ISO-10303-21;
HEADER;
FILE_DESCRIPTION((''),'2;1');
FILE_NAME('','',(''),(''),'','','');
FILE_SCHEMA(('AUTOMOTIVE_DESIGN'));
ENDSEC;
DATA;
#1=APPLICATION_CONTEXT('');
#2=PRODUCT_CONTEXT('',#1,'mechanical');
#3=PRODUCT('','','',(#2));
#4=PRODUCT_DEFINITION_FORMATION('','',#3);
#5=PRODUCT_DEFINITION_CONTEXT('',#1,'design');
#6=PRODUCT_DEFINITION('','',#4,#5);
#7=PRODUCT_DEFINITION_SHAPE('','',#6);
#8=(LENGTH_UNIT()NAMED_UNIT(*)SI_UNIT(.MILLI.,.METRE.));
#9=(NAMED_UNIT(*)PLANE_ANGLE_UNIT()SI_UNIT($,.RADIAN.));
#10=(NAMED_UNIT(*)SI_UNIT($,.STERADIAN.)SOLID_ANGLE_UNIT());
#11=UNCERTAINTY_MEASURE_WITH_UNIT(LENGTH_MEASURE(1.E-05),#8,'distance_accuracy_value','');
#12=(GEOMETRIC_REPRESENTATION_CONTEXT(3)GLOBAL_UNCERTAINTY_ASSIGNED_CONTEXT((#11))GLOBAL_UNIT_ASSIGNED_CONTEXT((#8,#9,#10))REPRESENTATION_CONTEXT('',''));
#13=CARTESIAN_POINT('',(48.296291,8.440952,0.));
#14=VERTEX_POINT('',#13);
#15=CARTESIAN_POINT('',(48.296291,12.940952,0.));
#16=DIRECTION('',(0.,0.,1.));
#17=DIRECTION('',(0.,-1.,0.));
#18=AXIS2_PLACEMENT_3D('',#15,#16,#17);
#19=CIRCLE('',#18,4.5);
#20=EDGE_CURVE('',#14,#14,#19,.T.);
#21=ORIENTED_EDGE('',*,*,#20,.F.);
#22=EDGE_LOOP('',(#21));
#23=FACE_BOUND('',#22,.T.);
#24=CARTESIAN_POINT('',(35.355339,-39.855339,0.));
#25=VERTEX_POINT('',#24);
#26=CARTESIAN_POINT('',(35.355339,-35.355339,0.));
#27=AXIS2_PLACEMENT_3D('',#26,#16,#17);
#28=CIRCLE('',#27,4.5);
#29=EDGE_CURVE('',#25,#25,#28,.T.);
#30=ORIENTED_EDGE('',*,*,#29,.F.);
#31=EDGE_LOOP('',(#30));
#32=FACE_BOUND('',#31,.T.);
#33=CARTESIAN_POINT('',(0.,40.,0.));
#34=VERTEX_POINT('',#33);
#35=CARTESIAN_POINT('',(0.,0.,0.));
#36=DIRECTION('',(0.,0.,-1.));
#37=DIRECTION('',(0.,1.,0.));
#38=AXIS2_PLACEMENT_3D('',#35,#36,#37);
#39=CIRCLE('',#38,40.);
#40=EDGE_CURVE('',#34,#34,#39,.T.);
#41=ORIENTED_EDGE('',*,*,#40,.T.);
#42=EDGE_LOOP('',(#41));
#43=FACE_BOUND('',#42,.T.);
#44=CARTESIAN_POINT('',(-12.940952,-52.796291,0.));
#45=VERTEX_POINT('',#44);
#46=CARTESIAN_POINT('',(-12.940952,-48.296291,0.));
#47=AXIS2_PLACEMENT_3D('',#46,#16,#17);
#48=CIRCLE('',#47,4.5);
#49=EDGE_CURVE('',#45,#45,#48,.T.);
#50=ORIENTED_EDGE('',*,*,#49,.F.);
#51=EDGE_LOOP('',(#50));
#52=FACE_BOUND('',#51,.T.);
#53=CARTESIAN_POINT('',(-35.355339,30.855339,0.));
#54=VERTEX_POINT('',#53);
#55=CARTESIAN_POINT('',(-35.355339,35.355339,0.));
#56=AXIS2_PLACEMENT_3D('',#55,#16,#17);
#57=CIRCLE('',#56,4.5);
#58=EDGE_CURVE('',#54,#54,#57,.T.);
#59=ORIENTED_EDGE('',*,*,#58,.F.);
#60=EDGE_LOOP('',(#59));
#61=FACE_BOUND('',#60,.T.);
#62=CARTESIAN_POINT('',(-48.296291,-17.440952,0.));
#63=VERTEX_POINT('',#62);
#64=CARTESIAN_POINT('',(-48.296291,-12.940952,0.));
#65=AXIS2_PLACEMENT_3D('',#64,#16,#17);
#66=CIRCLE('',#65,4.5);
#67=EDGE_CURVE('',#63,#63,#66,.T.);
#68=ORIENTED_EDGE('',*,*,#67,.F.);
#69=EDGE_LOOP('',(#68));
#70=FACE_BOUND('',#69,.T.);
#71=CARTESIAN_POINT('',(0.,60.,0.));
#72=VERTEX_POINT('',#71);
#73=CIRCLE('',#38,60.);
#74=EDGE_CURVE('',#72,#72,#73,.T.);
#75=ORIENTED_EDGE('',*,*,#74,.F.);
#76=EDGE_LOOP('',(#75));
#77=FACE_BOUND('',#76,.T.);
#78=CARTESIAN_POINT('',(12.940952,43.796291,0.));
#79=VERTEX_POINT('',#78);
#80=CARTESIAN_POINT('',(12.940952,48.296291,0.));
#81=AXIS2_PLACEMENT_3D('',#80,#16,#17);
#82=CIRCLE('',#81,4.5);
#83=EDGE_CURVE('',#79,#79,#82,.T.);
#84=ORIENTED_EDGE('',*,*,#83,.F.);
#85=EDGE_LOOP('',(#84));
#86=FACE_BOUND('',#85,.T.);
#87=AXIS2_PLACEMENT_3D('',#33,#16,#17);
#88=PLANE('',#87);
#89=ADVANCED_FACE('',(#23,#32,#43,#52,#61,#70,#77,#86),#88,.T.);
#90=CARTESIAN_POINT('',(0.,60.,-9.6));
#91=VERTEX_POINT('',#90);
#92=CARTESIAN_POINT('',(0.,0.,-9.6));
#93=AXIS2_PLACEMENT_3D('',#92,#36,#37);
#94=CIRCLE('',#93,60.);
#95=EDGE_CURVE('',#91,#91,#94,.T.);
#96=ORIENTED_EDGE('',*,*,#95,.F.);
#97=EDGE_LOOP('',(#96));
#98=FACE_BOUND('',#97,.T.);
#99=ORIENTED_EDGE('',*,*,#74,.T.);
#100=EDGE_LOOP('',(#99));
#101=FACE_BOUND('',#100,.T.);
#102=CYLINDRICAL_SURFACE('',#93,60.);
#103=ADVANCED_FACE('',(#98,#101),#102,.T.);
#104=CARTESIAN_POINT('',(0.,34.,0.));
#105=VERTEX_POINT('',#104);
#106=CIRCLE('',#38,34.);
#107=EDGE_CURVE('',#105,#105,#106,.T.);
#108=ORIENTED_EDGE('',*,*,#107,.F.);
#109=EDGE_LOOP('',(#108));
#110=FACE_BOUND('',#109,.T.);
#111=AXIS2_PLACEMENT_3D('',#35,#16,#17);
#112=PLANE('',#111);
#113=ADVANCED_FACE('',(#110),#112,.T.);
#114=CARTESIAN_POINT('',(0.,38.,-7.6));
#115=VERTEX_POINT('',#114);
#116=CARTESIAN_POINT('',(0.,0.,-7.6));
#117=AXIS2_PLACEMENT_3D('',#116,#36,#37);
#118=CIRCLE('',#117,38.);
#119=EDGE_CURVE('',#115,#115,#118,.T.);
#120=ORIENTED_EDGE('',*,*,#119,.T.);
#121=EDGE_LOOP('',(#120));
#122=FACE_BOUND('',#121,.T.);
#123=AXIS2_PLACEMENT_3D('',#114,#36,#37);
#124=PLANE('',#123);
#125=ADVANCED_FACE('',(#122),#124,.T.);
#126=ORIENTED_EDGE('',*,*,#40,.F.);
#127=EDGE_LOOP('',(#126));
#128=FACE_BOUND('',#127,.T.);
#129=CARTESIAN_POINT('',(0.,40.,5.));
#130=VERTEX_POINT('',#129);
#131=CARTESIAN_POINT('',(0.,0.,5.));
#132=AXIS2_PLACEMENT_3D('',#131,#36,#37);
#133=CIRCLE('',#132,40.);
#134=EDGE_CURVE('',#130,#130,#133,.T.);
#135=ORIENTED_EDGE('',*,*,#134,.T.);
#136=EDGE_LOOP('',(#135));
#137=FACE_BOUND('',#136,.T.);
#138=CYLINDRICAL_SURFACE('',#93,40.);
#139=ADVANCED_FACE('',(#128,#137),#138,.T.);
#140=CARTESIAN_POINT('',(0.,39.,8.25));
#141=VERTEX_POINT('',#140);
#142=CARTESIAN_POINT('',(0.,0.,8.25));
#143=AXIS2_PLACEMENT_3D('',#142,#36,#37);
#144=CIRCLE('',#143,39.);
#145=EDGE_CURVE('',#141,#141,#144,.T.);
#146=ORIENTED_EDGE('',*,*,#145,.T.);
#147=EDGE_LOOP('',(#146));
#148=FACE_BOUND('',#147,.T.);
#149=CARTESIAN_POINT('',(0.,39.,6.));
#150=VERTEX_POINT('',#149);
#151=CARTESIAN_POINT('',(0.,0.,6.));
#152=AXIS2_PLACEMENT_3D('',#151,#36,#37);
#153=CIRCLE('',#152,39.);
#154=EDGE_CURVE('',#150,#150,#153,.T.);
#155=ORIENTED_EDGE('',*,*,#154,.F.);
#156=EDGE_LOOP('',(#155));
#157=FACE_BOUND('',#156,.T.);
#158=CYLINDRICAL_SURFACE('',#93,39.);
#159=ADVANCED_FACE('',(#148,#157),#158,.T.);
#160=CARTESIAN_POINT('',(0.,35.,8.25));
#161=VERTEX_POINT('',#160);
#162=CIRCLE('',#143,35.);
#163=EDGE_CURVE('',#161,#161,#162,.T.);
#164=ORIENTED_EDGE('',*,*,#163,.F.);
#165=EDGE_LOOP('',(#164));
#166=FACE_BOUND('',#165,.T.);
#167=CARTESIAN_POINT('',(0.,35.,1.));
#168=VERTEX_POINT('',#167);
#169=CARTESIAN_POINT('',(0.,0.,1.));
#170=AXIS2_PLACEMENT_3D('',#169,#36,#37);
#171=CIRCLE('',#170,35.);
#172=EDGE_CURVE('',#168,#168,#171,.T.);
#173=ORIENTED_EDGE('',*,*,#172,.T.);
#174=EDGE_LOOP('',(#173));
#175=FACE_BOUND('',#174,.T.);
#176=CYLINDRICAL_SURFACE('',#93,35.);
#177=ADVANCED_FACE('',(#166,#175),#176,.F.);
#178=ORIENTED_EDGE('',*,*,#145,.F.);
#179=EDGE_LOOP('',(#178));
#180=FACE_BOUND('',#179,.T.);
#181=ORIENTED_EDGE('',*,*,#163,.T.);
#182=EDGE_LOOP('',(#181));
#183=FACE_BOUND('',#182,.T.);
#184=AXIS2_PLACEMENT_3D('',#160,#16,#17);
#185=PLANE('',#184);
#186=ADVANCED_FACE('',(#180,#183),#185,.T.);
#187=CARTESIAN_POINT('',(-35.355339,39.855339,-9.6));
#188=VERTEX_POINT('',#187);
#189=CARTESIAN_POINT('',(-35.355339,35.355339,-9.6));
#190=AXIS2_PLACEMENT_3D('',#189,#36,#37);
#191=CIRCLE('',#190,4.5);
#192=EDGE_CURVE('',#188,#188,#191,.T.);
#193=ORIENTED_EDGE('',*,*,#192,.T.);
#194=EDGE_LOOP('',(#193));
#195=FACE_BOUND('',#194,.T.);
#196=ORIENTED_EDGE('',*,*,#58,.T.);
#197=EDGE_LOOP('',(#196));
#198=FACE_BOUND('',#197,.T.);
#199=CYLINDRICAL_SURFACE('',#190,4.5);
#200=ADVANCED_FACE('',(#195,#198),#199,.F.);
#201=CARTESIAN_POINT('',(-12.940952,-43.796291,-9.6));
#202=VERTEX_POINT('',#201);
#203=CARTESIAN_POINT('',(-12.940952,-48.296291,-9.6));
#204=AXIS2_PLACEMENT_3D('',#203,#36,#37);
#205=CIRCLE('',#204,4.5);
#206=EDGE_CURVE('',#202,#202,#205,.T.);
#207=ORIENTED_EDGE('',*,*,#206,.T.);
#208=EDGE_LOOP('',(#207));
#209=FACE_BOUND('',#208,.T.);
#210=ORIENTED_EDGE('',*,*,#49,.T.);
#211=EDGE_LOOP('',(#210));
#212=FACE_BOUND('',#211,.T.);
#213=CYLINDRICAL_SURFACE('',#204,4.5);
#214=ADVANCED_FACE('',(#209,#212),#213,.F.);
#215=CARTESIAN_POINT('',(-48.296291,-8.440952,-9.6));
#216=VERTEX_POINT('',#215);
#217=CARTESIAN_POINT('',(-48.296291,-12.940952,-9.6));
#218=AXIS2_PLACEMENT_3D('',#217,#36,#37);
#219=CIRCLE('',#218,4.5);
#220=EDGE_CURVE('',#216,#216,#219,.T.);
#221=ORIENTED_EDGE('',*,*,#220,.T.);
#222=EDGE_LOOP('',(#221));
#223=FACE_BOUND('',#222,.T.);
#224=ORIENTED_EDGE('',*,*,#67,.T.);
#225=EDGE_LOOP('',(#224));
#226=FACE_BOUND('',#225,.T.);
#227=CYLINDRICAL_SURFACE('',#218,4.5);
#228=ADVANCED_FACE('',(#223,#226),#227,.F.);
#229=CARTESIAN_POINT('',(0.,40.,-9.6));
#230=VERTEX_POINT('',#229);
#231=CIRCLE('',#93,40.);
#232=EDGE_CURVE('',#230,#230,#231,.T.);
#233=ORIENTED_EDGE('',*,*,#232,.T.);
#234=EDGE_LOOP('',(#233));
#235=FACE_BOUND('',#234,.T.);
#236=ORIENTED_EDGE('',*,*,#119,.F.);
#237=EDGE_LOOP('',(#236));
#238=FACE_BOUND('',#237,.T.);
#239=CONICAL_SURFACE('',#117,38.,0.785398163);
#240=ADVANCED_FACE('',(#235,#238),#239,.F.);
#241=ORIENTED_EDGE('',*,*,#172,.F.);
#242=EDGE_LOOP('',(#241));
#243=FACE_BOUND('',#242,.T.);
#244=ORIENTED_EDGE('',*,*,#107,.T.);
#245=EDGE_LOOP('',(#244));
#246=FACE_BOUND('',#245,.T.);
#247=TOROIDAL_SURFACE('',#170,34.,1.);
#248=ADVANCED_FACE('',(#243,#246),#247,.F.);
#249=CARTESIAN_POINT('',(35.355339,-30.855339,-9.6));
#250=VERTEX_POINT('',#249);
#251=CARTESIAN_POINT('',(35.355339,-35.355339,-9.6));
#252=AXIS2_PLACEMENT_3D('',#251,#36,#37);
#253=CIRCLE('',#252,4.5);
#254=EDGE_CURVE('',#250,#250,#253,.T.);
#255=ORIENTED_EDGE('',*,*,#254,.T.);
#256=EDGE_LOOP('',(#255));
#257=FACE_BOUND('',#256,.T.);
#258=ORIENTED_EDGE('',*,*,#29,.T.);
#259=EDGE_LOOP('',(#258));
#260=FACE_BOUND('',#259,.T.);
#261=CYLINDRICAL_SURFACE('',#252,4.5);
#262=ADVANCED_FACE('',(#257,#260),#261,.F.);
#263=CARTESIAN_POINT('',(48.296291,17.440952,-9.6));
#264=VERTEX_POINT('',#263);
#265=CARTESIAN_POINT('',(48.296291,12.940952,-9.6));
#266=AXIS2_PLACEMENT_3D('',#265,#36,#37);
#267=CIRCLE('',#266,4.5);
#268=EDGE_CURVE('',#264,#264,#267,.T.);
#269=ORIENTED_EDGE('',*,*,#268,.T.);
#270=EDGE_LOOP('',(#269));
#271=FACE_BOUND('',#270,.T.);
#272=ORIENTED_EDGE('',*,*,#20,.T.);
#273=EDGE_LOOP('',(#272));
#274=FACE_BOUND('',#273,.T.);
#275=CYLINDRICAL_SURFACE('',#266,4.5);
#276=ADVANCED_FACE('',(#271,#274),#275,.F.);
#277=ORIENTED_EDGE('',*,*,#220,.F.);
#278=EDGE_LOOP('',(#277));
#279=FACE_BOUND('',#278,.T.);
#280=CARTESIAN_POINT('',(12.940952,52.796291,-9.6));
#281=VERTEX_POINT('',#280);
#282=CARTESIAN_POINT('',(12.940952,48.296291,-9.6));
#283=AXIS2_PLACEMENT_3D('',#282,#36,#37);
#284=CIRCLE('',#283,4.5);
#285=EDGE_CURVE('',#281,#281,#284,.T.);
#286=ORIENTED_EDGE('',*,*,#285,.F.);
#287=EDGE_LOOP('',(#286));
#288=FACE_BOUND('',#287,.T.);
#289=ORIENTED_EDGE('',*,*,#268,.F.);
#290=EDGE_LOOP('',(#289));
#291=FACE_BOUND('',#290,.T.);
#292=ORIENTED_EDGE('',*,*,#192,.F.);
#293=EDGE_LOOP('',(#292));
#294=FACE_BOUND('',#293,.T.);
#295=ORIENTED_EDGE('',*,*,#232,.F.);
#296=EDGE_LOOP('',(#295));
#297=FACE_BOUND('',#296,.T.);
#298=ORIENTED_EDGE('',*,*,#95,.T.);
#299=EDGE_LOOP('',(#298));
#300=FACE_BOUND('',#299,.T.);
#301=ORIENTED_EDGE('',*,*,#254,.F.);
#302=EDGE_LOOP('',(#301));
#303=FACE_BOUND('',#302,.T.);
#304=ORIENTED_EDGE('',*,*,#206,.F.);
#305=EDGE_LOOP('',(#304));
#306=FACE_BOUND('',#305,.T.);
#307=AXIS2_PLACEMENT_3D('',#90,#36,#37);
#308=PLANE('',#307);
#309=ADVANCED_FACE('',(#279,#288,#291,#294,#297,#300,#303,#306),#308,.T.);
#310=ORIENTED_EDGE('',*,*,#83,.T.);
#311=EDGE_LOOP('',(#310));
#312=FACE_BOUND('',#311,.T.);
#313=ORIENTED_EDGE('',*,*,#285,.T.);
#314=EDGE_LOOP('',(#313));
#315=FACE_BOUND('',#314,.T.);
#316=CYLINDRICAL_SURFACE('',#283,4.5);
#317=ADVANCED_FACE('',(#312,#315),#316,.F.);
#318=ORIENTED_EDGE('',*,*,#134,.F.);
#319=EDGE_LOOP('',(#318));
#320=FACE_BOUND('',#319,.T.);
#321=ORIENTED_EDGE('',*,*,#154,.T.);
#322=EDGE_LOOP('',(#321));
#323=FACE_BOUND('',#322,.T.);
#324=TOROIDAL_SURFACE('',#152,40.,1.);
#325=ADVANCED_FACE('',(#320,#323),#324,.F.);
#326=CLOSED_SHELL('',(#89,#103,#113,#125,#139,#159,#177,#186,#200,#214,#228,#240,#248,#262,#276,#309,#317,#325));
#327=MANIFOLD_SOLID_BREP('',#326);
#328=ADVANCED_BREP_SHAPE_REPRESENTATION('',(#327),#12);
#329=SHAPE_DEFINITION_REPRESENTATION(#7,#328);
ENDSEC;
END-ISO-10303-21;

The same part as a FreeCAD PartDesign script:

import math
import FreeCAD as App
import Part
import Sketcher
from FreeCAD import Vector
Q = App.Units.Quantity

doc = App.newDocument("Part")
body = doc.addObject("PartDesign::Body", "Body")

sketch1 = body.newObject("Sketcher::SketchObject", "Sketch")
sketch1.AttachmentSupport = (doc.getObject("YZ_Plane"), [""])
sketch1.MapMode = "FlatFace"
sketch1.addGeometry(Part.LineSegment(Vector(34, 0, 0), Vector(0, 0, 0)), False)
sketch1.addGeometry(Part.LineSegment(Vector(0, 0, 0), Vector(0, -7.6, 0)), False)
sketch1.addGeometry(Part.LineSegment(Vector(0, -7.6, 0), Vector(38, -7.6, 0)), False)
sketch1.addGeometry(Part.LineSegment(Vector(38, -7.6, 0), Vector(40, -9.6, 0)), False)
sketch1.addGeometry(Part.LineSegment(Vector(40, -9.6, 0), Vector(60, -9.6, 0)), False)
sketch1.addGeometry(Part.LineSegment(Vector(60, -9.6, 0), Vector(60, 0, 0)), False)
sketch1.addGeometry(Part.LineSegment(Vector(60, 0, 0), Vector(40, 0, 0)), False)
sketch1.addGeometry(Part.LineSegment(Vector(40, 0, 0), Vector(40, 5, 0)), False)
sketch1.addGeometry(Part.ArcOfCircle(Part.Circle(Vector(40, 6, 0), Vector(0, 0, 1), 1), math.radians(-180), math.radians(-90)), False)
sketch1.addGeometry(Part.LineSegment(Vector(39, 6, 0), Vector(39, 8.2, 0)), False)
sketch1.addGeometry(Part.LineSegment(Vector(39, 8.2, 0), Vector(35, 8.2, 0)), False)
sketch1.addGeometry(Part.LineSegment(Vector(35, 8.2, 0), Vector(35, 1, 0)), False)
sketch1.addGeometry(Part.ArcOfCircle(Part.Circle(Vector(34, 1, 0), Vector(0, 0, 1), 1), math.radians(-90), math.radians(0)), False)
sketch1.addConstraint(Sketcher.Constraint("Coincident", 0, 2, 1, 1))
sketch1.addConstraint(Sketcher.Constraint("Coincident", 1, 2, 2, 1))
sketch1.addConstraint(Sketcher.Constraint("Coincident", 2, 2, 3, 1))
sketch1.addConstraint(Sketcher.Constraint("Coincident", 3, 2, 4, 1))
sketch1.addConstraint(Sketcher.Constraint("Coincident", 4, 2, 5, 1))
sketch1.addConstraint(Sketcher.Constraint("Coincident", 5, 2, 6, 1))
sketch1.addConstraint(Sketcher.Constraint("Coincident", 6, 2, 7, 1))
sketch1.addConstraint(Sketcher.Constraint("Coincident", 7, 2, 8, 2))
sketch1.addConstraint(Sketcher.Constraint("Tangent", 8, 1, 9, 1))
sketch1.addConstraint(Sketcher.Constraint("Coincident", 9, 2, 10, 1))
sketch1.addConstraint(Sketcher.Constraint("Coincident", 10, 2, 11, 1))
sketch1.addConstraint(Sketcher.Constraint("Tangent", 11, 2, 12, 2))
sketch1.addConstraint(Sketcher.Constraint("Tangent", 12, 1, 0, 1))
sketch1.addConstraint(Sketcher.Constraint("Horizontal", 0))
sketch1.addConstraint(Sketcher.Constraint("Vertical", 1))
sketch1.addConstraint(Sketcher.Constraint("Horizontal", 2))
sketch1.addConstraint(Sketcher.Constraint("Horizontal", 4))
sketch1.addConstraint(Sketcher.Constraint("Vertical", 5))
sketch1.addConstraint(Sketcher.Constraint("Horizontal", 6))
sketch1.addConstraint(Sketcher.Constraint("Vertical", 7))
sketch1.addConstraint(Sketcher.Constraint("Vertical", 9))
sketch1.addConstraint(Sketcher.Constraint("Horizontal", 10))
sketch1.addConstraint(Sketcher.Constraint("Vertical", 11))
sketch1.addConstraint(Sketcher.Constraint("Coincident", 0, 2, -1, 1))
sketch1.addConstraint(Sketcher.Constraint("Equal", 8, 12))
sketch1.addConstraint(Sketcher.Constraint("PointOnObject", 5, 2, -1))
sketch1.addConstraint(Sketcher.Constraint("Vertical", 8, 3, 3, 2))
sketch1.addConstraint(Sketcher.Constraint("Vertical", 3, 2, 6, 2))
sketch1.addConstraint(Sketcher.Constraint("Radius", 8, Q("1 mm")))
sketch1.addConstraint(Sketcher.Constraint("DistanceX", 0, 2, 0, 1, Q("34 mm")))
sketch1.addConstraint(Sketcher.Constraint("DistanceX", 2, 1, 2, 2, Q("38 mm")))
sketch1.addConstraint(Sketcher.Constraint("DistanceX", 4, 1, 4, 2, Q("20 mm")))
sketch1.addConstraint(Sketcher.Constraint("DistanceX", 10, 2, 10, 1, Q("4 mm")))
sketch1.addConstraint(Sketcher.Constraint("DistanceY", 7, 1, 7, 2, Q("5 mm")))
sketch1.addConstraint(Sketcher.Constraint("Angle", 3, Q("-45 deg")))
sketch1.addConstraint(Sketcher.Constraint("DistanceY", 1, 2, 1, 1, Q("7.6 mm")))
sketch1.addConstraint(Sketcher.Constraint("DistanceY", 9, 1, 9, 2, Q("2.25 mm")))
revolution = body.newObject("PartDesign::Revolution", "Revolution")
revolution.Profile = sketch1
revolution.ReferenceAxis = (sketch1, ["V_Axis"])
revolution.Angle = 360

sketch2 = body.newObject("Sketcher::SketchObject", "Sketch001")
sketch2.AttachmentSupport = (doc.getObject("XY_Plane"), [""])
sketch2.MapMode = "FlatFace"
sketch2.AttachmentOffset = App.Placement(Vector(0, 0, -9.6), App.Rotation())
sketch2.addGeometry(Part.Circle(Vector(-35.4, 35.4, 0), Vector(0, 0, 1), 4.5), False)
sketch2.addConstraint(Sketcher.Constraint("Diameter", 0, Q("9 mm")))
sketch2.addConstraint(Sketcher.Constraint("DistanceX", 0, 3, -1, 1, Q("35.355339 mm")))
sketch2.addConstraint(Sketcher.Constraint("DistanceY", -1, 1, 0, 3, Q("35.355339 mm")))
doc.recompute()
hole = body.newObject("PartDesign::Hole", "Hole")
hole.Profile = sketch2
hole.ThreadType = "None"
hole.Diameter = 9
hole.DepthType = "ThroughAll"
hole.Reversed = True
doc.recompute()

polarpattern = body.newObject("PartDesign::PolarPattern", "PolarPattern")
polarpattern.Originals = [hole]
polarpattern.Axis = (doc.getObject("Z_Axis"), [""])
polarpattern.Angle = 360
polarpattern.Occurrences = 6
body.Tip = polarpattern

doc.recompute()
